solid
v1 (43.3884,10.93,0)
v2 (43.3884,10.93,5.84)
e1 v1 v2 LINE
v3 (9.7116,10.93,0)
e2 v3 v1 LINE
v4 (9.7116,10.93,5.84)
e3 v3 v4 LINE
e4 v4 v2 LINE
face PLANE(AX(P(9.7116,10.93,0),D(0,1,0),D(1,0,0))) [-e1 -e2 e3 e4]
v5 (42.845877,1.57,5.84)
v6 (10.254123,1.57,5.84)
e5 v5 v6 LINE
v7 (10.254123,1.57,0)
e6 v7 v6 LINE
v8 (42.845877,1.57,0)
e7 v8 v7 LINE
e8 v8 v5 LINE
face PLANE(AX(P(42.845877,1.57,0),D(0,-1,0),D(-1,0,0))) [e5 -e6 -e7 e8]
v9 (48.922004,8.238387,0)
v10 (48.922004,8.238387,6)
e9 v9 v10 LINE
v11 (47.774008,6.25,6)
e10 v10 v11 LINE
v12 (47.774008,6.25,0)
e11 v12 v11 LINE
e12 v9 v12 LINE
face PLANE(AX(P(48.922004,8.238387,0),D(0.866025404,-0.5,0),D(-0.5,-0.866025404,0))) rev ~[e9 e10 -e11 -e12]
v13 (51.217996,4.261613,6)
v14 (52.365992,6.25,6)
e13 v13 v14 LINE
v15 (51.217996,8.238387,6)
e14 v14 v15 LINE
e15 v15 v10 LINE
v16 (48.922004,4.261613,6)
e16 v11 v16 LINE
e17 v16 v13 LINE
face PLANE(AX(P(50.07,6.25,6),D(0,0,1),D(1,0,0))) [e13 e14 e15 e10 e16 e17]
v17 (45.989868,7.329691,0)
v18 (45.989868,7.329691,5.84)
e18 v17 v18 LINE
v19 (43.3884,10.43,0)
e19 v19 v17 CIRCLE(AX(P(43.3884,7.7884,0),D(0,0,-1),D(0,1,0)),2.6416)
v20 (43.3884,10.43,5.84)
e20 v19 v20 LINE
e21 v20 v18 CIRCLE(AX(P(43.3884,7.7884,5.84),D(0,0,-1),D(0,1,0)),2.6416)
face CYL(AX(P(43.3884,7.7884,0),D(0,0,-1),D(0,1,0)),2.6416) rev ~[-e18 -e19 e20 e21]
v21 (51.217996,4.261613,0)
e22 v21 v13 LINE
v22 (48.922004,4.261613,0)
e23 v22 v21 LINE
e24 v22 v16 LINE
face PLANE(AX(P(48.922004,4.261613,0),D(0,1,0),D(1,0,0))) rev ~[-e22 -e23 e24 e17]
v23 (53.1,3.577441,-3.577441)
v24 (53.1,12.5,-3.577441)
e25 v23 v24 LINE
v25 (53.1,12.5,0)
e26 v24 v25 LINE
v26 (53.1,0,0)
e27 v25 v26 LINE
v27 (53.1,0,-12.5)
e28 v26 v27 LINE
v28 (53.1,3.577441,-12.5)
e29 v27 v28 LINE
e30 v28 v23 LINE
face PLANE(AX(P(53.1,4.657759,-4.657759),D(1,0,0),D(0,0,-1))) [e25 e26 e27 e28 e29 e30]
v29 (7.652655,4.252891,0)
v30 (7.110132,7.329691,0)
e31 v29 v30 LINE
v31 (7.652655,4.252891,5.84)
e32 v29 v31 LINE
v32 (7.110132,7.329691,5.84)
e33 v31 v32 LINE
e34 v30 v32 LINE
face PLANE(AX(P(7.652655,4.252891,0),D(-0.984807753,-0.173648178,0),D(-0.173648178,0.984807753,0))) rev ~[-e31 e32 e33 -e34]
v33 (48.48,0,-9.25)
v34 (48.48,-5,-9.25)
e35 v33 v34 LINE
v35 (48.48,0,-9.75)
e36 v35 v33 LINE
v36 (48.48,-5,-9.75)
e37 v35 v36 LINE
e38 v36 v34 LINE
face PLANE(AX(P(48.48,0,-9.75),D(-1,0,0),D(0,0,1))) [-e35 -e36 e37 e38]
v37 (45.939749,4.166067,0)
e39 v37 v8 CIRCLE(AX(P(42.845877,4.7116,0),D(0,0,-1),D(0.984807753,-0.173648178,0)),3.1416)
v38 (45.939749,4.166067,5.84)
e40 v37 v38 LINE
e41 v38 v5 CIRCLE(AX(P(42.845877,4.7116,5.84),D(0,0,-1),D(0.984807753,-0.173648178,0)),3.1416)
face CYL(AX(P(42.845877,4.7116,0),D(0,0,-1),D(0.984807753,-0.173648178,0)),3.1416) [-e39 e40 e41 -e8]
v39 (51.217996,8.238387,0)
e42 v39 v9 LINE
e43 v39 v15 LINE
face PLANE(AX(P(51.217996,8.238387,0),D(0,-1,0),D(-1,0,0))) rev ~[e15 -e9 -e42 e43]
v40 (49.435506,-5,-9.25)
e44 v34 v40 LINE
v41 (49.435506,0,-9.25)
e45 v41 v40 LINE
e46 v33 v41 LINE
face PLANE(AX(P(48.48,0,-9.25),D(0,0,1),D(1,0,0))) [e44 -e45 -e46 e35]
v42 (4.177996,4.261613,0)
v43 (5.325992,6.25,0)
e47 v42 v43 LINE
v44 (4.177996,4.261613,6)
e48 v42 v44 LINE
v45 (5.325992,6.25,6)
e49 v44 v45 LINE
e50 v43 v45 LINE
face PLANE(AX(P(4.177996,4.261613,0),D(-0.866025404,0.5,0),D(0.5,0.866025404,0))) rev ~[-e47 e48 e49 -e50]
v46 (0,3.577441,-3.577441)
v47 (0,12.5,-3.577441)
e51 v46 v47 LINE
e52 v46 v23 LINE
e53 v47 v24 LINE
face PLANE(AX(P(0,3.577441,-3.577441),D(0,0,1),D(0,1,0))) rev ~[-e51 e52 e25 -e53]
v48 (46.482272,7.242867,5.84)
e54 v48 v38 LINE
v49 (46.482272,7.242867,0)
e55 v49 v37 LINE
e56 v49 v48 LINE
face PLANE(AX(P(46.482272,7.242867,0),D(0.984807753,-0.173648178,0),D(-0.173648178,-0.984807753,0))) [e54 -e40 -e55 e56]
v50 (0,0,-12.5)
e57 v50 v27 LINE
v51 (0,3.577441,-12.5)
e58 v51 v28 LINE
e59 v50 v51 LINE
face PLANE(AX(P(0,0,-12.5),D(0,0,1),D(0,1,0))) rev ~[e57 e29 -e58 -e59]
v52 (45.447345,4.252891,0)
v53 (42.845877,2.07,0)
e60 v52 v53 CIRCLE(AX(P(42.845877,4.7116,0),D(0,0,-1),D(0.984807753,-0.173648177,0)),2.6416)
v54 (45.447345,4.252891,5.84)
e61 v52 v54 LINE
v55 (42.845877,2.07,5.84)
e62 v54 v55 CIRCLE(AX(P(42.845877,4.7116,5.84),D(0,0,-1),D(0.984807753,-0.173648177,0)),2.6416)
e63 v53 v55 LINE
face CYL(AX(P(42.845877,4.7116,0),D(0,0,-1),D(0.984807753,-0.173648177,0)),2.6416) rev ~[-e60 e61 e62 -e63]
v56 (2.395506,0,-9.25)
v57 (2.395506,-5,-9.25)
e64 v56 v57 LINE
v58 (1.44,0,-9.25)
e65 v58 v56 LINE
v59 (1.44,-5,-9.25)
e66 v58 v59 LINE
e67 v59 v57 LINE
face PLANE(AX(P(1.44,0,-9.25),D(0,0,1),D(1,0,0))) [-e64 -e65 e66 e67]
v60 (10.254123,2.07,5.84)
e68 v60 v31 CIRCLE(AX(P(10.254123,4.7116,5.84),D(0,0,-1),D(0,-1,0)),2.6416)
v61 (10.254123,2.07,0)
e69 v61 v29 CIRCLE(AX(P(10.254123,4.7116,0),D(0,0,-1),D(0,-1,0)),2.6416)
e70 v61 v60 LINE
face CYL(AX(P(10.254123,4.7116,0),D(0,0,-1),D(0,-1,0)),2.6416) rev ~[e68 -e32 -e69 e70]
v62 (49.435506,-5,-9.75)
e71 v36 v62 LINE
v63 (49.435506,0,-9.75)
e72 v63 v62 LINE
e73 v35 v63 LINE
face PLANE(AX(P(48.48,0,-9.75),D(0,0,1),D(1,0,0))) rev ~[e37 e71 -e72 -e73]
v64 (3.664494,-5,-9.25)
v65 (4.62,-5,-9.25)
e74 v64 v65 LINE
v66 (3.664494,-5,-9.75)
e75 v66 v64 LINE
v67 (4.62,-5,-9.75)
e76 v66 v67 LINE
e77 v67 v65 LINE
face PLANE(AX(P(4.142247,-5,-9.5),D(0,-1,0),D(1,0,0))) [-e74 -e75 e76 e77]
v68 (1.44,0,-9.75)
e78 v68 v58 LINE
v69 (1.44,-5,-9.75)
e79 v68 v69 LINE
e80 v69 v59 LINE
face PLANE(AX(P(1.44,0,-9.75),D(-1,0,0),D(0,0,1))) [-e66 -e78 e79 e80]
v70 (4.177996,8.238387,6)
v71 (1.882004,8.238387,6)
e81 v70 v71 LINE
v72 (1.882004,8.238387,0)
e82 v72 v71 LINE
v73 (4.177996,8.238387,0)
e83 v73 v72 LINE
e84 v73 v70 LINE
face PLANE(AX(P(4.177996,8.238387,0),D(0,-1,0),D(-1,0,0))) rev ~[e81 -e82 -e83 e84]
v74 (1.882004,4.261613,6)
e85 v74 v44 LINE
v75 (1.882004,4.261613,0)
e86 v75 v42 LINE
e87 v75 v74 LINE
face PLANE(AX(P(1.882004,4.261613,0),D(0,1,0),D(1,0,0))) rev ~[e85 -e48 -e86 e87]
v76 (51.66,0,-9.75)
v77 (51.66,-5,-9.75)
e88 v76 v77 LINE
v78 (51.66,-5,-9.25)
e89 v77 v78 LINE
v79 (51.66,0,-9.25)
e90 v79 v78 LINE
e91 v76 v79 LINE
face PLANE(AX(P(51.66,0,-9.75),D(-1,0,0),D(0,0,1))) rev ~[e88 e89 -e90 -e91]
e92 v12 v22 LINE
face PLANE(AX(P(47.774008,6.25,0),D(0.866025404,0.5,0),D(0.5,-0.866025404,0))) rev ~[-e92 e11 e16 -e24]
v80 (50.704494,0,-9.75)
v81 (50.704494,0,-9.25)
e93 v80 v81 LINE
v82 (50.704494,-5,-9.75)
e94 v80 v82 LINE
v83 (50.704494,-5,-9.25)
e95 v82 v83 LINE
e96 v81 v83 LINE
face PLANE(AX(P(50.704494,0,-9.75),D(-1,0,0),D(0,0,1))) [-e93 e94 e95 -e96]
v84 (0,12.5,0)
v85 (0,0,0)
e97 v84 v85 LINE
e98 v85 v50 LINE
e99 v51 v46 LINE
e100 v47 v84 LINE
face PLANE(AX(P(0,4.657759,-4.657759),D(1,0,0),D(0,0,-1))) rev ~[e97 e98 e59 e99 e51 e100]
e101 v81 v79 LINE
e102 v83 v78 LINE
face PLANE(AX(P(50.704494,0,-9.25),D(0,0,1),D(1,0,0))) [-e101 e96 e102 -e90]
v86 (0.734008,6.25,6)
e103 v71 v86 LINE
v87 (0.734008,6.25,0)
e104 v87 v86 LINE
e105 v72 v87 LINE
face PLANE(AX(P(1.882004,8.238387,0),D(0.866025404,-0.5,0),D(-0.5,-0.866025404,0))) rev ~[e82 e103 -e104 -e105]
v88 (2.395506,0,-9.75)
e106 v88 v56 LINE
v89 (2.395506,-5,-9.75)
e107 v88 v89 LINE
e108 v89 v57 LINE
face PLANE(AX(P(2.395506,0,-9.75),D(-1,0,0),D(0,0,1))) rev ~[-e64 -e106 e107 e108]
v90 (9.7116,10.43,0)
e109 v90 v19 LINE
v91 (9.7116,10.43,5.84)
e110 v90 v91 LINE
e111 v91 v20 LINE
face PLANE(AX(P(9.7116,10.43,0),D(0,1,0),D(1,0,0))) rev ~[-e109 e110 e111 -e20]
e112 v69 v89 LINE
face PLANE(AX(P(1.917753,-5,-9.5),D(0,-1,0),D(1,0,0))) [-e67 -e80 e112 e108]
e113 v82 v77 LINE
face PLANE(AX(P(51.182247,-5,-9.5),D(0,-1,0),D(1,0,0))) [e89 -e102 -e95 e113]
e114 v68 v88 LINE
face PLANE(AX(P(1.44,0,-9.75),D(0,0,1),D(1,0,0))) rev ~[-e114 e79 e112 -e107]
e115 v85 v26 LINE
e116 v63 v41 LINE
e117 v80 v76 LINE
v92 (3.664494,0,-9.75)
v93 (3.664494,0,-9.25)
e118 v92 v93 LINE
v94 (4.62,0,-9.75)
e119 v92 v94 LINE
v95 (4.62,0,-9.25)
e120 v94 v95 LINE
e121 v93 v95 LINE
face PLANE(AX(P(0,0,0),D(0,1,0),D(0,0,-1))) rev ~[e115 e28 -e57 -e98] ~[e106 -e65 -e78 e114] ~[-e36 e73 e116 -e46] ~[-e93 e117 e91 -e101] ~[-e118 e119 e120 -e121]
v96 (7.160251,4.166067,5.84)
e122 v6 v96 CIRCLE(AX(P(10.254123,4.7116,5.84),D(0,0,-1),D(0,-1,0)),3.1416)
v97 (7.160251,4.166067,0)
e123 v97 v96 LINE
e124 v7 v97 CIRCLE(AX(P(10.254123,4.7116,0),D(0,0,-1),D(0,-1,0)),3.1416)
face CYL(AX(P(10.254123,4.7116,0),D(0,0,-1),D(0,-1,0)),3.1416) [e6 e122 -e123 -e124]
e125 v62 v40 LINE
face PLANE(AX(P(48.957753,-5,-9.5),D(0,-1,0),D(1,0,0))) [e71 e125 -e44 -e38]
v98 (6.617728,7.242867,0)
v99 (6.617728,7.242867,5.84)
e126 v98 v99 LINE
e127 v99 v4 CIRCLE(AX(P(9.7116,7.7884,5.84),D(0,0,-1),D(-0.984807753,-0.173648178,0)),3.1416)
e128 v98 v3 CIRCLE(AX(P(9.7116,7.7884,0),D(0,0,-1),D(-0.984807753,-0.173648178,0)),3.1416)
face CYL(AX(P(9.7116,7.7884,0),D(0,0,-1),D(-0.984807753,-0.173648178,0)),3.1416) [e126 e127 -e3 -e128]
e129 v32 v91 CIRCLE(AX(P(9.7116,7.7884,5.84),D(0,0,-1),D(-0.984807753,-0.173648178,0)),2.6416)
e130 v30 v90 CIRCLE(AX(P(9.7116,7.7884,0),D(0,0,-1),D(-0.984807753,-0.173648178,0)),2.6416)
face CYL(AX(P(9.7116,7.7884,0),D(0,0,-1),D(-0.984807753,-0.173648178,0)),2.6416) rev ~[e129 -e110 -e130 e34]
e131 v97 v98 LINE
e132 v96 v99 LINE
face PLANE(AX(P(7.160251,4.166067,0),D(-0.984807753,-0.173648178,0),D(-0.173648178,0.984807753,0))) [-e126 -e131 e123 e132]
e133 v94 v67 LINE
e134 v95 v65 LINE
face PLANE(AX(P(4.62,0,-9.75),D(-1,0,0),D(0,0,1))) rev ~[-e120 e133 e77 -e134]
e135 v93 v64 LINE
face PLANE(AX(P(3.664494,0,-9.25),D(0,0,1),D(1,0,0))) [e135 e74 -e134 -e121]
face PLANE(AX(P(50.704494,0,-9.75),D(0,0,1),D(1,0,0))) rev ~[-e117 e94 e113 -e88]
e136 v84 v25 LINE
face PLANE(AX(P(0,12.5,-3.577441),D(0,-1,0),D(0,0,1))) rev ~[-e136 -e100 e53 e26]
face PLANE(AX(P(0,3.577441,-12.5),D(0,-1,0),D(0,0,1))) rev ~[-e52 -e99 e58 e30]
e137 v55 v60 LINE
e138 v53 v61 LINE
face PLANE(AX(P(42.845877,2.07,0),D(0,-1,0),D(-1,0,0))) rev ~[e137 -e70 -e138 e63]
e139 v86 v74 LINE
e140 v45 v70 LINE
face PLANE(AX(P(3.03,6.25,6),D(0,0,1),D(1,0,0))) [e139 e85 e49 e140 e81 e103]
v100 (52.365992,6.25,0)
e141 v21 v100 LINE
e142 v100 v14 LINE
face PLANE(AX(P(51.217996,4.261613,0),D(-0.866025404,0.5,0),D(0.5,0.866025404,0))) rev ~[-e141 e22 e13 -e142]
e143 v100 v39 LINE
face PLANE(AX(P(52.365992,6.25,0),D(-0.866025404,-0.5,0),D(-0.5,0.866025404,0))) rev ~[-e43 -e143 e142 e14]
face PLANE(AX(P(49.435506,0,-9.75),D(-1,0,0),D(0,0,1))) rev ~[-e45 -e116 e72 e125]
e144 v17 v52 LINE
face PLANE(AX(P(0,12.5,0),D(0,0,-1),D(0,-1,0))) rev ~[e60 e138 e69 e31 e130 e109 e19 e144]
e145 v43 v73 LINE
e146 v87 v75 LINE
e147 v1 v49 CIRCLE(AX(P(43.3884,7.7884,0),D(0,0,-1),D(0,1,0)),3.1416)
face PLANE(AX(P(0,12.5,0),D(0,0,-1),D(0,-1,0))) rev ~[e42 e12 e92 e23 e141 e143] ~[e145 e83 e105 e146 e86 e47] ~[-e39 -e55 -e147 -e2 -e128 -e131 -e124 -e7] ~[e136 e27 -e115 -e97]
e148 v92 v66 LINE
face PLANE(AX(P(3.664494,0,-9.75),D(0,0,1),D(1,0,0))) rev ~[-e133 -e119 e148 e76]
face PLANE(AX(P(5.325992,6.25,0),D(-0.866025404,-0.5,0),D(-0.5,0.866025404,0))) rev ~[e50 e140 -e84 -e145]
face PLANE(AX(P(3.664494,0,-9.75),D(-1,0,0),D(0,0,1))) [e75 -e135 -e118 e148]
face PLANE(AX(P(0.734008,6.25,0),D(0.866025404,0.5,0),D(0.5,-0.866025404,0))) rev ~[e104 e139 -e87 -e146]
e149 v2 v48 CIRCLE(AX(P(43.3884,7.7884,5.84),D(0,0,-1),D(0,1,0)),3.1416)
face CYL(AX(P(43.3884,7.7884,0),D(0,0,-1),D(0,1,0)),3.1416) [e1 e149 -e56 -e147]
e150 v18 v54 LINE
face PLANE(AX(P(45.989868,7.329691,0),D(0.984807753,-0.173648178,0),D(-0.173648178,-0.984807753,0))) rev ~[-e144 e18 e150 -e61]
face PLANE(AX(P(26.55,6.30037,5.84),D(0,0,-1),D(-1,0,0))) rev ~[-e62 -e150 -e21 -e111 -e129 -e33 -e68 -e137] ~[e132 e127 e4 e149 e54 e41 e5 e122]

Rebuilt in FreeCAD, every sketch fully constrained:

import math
import FreeCAD as App
import Part
import Sketcher

V = App.Vector
Q = App.Units.Quantity


def add_polygon(sketch, points):
    """Adds a closed chain of lines whose ends are joined by coincident constraints."""
    first, n = sketch.GeometryCount, len(points)
    for a, b in zip(points, points[1:] + points[:1]):
        sketch.addGeometry(Part.LineSegment(App.Vector(*a, 0), App.Vector(*b, 0)), False)
    for i in range(n):
        sketch.addConstraint(Sketcher.Constraint("Coincident", first + i, 2, first + (i + 1) % n, 1))

doc = App.newDocument("Part")
body = doc.addObject("PartDesign::Body", "Body")

# Sketch on YZ plane
sketch1 = body.newObject("Sketcher::SketchObject", "Sketch")
sketch1.AttachmentSupport = (doc.getObject("YZ_Plane"), [""])
sketch1.MapMode = "FlatFace"
add_polygon(sketch1, [(0, 0), (0, -12.5), (3.577441, -12.5), (3.577441, -3.577441), (12.5, -3.577441), (12.5, 0)])  # lines 0-5
sketch1.addConstraint(Sketcher.Constraint("Vertical", 0))
sketch1.addConstraint(Sketcher.Constraint("Horizontal", 1))
sketch1.addConstraint(Sketcher.Constraint("Vertical", 2))
sketch1.addConstraint(Sketcher.Constraint("Horizontal", 3))
sketch1.addConstraint(Sketcher.Constraint("Vertical", 4))
sketch1.addConstraint(Sketcher.Constraint("Horizontal", 5))
sketch1.addConstraint(Sketcher.Constraint("Coincident", 5, 2, -1, 1))
sketch1.addConstraint(Sketcher.Constraint("Equal", 5, 0))
sketch1.addConstraint(Sketcher.Constraint("Equal", 3, 2))
sketch1.addConstraint(Sketcher.Constraint("DistanceX", 5, 2, 5, 1, Q("12.5 mm")))
sketch1.addConstraint(Sketcher.Constraint("DistanceX", 1, 1, 1, 2, Q("3.577441 mm")))
pad1 = body.newObject("PartDesign::Pad", "Pad")
pad1.Profile = sketch1
pad1.Length = 53.1

# Sketch on XZ plane
sketch2 = body.newObject("Sketcher::SketchObject", "Sketch001")
sketch2.AttachmentSupport = (doc.getObject("XZ_Plane"), [""])
sketch2.MapMode = "FlatFace"
add_polygon(sketch2, [(1.44, -9.25), (1.44, -9.75), (2.395506, -9.75), (2.395506, -9.25)])  # lines 0-3
add_polygon(sketch2, [(3.664494, -9.25), (3.664494, -9.75), (4.62, -9.75), (4.62, -9.25)])  # lines 4-7
add_polygon(sketch2, [(48.48, -9.25), (48.48, -9.75), (49.435506, -9.75), (49.435506, -9.25)])  # lines 8-11
add_polygon(sketch2, [(50.704494, -9.25), (50.704494, -9.75), (51.66, -9.75), (51.66, -9.25)])  # lines 12-15
sketch2.addConstraint(Sketcher.Constraint("Vertical", 0))
sketch2.addConstraint(Sketcher.Constraint("Horizontal", 1))
sketch2.addConstraint(Sketcher.Constraint("Vertical", 2))
sketch2.addConstraint(Sketcher.Constraint("Horizontal", 3))
sketch2.addConstraint(Sketcher.Constraint("Vertical", 4))
sketch2.addConstraint(Sketcher.Constraint("Horizontal", 5))
sketch2.addConstraint(Sketcher.Constraint("Vertical", 6))
sketch2.addConstraint(Sketcher.Constraint("Horizontal", 7))
sketch2.addConstraint(Sketcher.Constraint("Vertical", 8))
sketch2.addConstraint(Sketcher.Constraint("Horizontal", 9))
sketch2.addConstraint(Sketcher.Constraint("Vertical", 10))
sketch2.addConstraint(Sketcher.Constraint("Horizontal", 11))
sketch2.addConstraint(Sketcher.Constraint("Vertical", 12))
sketch2.addConstraint(Sketcher.Constraint("Horizontal", 13))
sketch2.addConstraint(Sketcher.Constraint("Vertical", 14))
sketch2.addConstraint(Sketcher.Constraint("Horizontal", 15))
sketch2.addConstraint(Sketcher.Constraint("Horizontal", 1, 2, 4, 2))
sketch2.addConstraint(Sketcher.Constraint("Horizontal", 3, 2, 6, 2))
sketch2.addConstraint(Sketcher.Constraint("Horizontal", 5, 2, 8, 2))
sketch2.addConstraint(Sketcher.Constraint("Horizontal", 7, 2, 10, 2))
sketch2.addConstraint(Sketcher.Constraint("Horizontal", 9, 2, 12, 2))
sketch2.addConstraint(Sketcher.Constraint("Horizontal", 11, 2, 14, 2))
sketch2.addConstraint(Sketcher.Constraint("Equal", 3, 5))
sketch2.addConstraint(Sketcher.Constraint("Equal", 7, 9))
sketch2.addConstraint(Sketcher.Constraint("Equal", 11, 13))
sketch2.addConstraint(Sketcher.Constraint("DistanceY", 0, 2, 0, 1, Q("0.5 mm")))
sketch2.addConstraint(Sketcher.Constraint("DistanceX", -1, 1, 0, 2, Q("1.44 mm")))
sketch2.addConstraint(Sketcher.Constraint("DistanceY", 0, 2, -1, 1, Q("9.75 mm")))
sketch2.addConstraint(Sketcher.Constraint("DistanceX", -1, 1, 5, 2, Q("4.62 mm")))
sketch2.addConstraint(Sketcher.Constraint("DistanceX", -1, 1, 8, 2, Q("48.48 mm")))
sketch2.addConstraint(Sketcher.Constraint("DistanceX", -1, 1, 13, 2, Q("51.66 mm")))
sketch2.addConstraint(Sketcher.Constraint("DistanceX", 1, 1, 1, 2, Q("0.955506 mm")))
pad2 = body.newObject("PartDesign::Pad", "Pad001")
pad2.Profile = sketch2
pad2.Length = 5

# Sketch on XY plane
sketch3 = body.newObject("Sketcher::SketchObject", "Sketch002")
sketch3.AttachmentSupport = (doc.getObject("XY_Plane"), [""])
sketch3.MapMode = "FlatFace"
add_polygon(sketch3, [(4.177996, 4.261613), (5.325992, 6.25), (4.177996, 8.238387), (1.882004, 8.238387), (0.734008, 6.25), (1.882004, 4.261613)])  # lines 0-5
add_polygon(sketch3, [(51.217996, 4.261613), (52.365992, 6.25), (51.217996, 8.238387), (48.922004, 8.238387), (47.774008, 6.25), (48.922004, 4.261613)])  # lines 6-11
sketch3.addConstraint(Sketcher.Constraint("Horizontal", 2))
sketch3.addConstraint(Sketcher.Constraint("Horizontal", 5))
sketch3.addConstraint(Sketcher.Constraint("Horizontal", 8))
sketch3.addConstraint(Sketcher.Constraint("Horizontal", 11))
sketch3.addConstraint(Sketcher.Constraint("Parallel", 0, 3))
sketch3.addConstraint(Sketcher.Constraint("Parallel", 1, 4))
sketch3.addConstraint(Sketcher.Constraint("Parallel", 3, 6))
sketch3.addConstraint(Sketcher.Constraint("Parallel", 4, 7))
sketch3.addConstraint(Sketcher.Constraint("Parallel", 6, 9))
sketch3.addConstraint(Sketcher.Constraint("Parallel", 7, 10))
sketch3.addConstraint(Sketcher.Constraint("Horizontal", 0, 2, 3, 2))
sketch3.addConstraint(Sketcher.Constraint("Horizontal", 3, 2, 6, 2))
sketch3.addConstraint(Sketcher.Constraint("Horizontal", 2, 2, 7, 2))
sketch3.addConstraint(Sketcher.Constraint("Horizontal", 6, 2, 9, 2))
sketch3.addConstraint(Sketcher.Constraint("Horizontal", 5, 2, 10, 2))
sketch3.addConstraint(Sketcher.Constraint("Vertical", 2, 2, 4, 2))
sketch3.addConstraint(Sketcher.Constraint("Vertical", 1, 2, 5, 2))
sketch3.addConstraint(Sketcher.Constraint("Equal", 5, 8))
sketch3.addConstraint(Sketcher.Constraint("Angle", 0, Q("60 deg")))
sketch3.addConstraint(Sketcher.Constraint("DistanceY", -1, 1, 0, 2, Q("6.25 mm")))
sketch3.addConstraint(Sketcher.Constraint("DistanceX", 0, 2, 6, 2, Q("47.04 mm")))
sketch3.addConstraint(Sketcher.Constraint("DistanceX", 2, 2, 2, 1, Q("2.295992 mm")))
sketch3.addConstraint(Sketcher.Constraint("Distance", 0, Q("2.295992 mm")))
sketch3.addConstraint(Sketcher.Constraint("DistanceX", -1, 1, 0, 2, Q("5.325992 mm")))
pad3 = body.newObject("PartDesign::Pad", "Pad002")
pad3.Profile = sketch3
pad3.Length = 6

# Sketch on XY plane
sketch4 = body.newObject("Sketcher::SketchObject", "Sketch003")
sketch4.AttachmentSupport = (doc.getObject("XY_Plane"), [""])
sketch4.MapMode = "FlatFace"
sketch4.addGeometry(Part.LineSegment(V(43.3884, 10.93, 0), V(9.7116, 10.93, 0)), False)
sketch4.addGeometry(Part.ArcOfCircle(Part.Circle(V(9.7116, 7.7884, 0), V(0, 0, 1), 3.1416), math.radians(90), math.radians(190)), False)
sketch4.addGeometry(Part.LineSegment(V(6.617728, 7.242867, 0), V(7.160251, 4.166067, 0)), False)
sketch4.addGeometry(Part.ArcOfCircle(Part.Circle(V(10.254123, 4.7116, 0), V(0, 0, 1), 3.1416), math.radians(-170), math.radians(-90)), False)
sketch4.addGeometry(Part.LineSegment(V(10.254123, 1.57, 0), V(42.845877, 1.57, 0)), False)
sketch4.addGeometry(Part.ArcOfCircle(Part.Circle(V(42.845877, 4.7116, 0), V(0, 0, 1), 3.1416), math.radians(-90), math.radians(-10)), False)
sketch4.addGeometry(Part.LineSegment(V(45.939749, 4.166067, 0), V(46.482272, 7.242867, 0)), False)
sketch4.addGeometry(Part.ArcOfCircle(Part.Circle(V(43.3884, 7.7884, 0), V(0, 0, 1), 3.1416), math.radians(-10), math.radians(90)), False)
sketch4.addGeometry(Part.LineSegment(V(9.7116, 10.43, 0), V(43.3884, 10.43, 0)), False)
sketch4.addGeometry(Part.ArcOfCircle(Part.Circle(V(43.3884, 7.7884, 0), V(0, 0, 1), 2.6416), math.radians(-10), math.radians(90)), False)
sketch4.addGeometry(Part.LineSegment(V(45.989868, 7.329691, 0), V(45.447345, 4.252891, 0)), False)
sketch4.addGeometry(Part.ArcOfCircle(Part.Circle(V(42.845877, 4.7116, 0), V(0, 0, 1), 2.6416), math.radians(-90), math.radians(-10)), False)
sketch4.addGeometry(Part.LineSegment(V(42.845877, 2.07, 0), V(10.254123, 2.07, 0)), False)
sketch4.addGeometry(Part.ArcOfCircle(Part.Circle(V(10.254123, 4.7116, 0), V(0, 0, 1), 2.6416), math.radians(-170), math.radians(-90)), False)
sketch4.addGeometry(Part.LineSegment(V(7.652655, 4.252891, 0), V(7.110132, 7.329691, 0)), False)
sketch4.addGeometry(Part.ArcOfCircle(Part.Circle(V(9.7116, 7.7884, 0), V(0, 0, 1), 2.6416), math.radians(90), math.radians(190)), False)
sketch4.addConstraint(Sketcher.Constraint("Tangent", 0, 2, 1, 1))
sketch4.addConstraint(Sketcher.Constraint("Tangent", 1, 2, 2, 1))
sketch4.addConstraint(Sketcher.Constraint("Tangent", 2, 2, 3, 1))
sketch4.addConstraint(Sketcher.Constraint("Tangent", 3, 2, 4, 1))
sketch4.addConstraint(Sketcher.Constraint("Tangent", 4, 2, 5, 1))
sketch4.addConstraint(Sketcher.Constraint("Tangent", 5, 2, 6, 1))
sketch4.addConstraint(Sketcher.Constraint("Tangent", 6, 2, 7, 1))
sketch4.addConstraint(Sketcher.Constraint("Tangent", 7, 2, 0, 1))
sketch4.addConstraint(Sketcher.Constraint("Tangent", 8, 2, 9, 2))
sketch4.addConstraint(Sketcher.Constraint("Tangent", 9, 1, 10, 1))
sketch4.addConstraint(Sketcher.Constraint("Tangent", 10, 2, 11, 2))
sketch4.addConstraint(Sketcher.Constraint("Tangent", 11, 1, 12, 1))
sketch4.addConstraint(Sketcher.Constraint("Tangent", 12, 2, 13, 2))
sketch4.addConstraint(Sketcher.Constraint("Tangent", 13, 1, 14, 1))
sketch4.addConstraint(Sketcher.Constraint("Tangent", 14, 2, 15, 2))
sketch4.addConstraint(Sketcher.Constraint("Tangent", 15, 1, 8, 1))
sketch4.addConstraint(Sketcher.Constraint("Horizontal", 0))
sketch4.addConstraint(Sketcher.Constraint("Horizontal", 4))
sketch4.addConstraint(Sketcher.Constraint("Horizontal", 8))
sketch4.addConstraint(Sketcher.Constraint("Horizontal", 12))
sketch4.addConstraint(Sketcher.Constraint("Coincident", 9, 3, 7, 3))
sketch4.addConstraint(Sketcher.Constraint("Coincident", 11, 3, 5, 3))
sketch4.addConstraint(Sketcher.Constraint("Coincident", 13, 3, 3, 3))
sketch4.addConstraint(Sketcher.Constraint("Coincident", 15, 3, 1, 3))
sketch4.addConstraint(Sketcher.Constraint("Equal", 1, 3))
sketch4.addConstraint(Sketcher.Constraint("Equal", 3, 5))
sketch4.addConstraint(Sketcher.Constraint("Equal", 5, 7))
sketch4.addConstraint(Sketcher.Constraint("Equal", 9, 11))
sketch4.addConstraint(Sketcher.Constraint("Horizontal", 2, 2, 5, 2))
sketch4.addConstraint(Sketcher.Constraint("Angle", 2, Q("-80 deg")))
sketch4.addConstraint(Sketcher.Constraint("Radius", 1, Q("3.1416 mm")))
sketch4.addConstraint(Sketcher.Constraint("Radius", 9, Q("2.6416 mm")))
sketch4.addConstraint(Sketcher.Constraint("DistanceY", -1, 1, 0, 2, Q("10.93 mm")))
sketch4.addConstraint(Sketcher.Constraint("DistanceY", -1, 1, 3, 2, Q("1.57 mm")))
sketch4.addConstraint(Sketcher.Constraint("DistanceX", 0, 2, 0, 1, Q("33.6768 mm")))
sketch4.addConstraint(Sketcher.Constraint("DistanceX", -1, 1, 1, 3, Q("9.7116 mm")))
pad4 = body.newObject("PartDesign::Pad", "Pad003")
pad4.Profile = sketch4
pad4.Length = 5.84

doc.recompute()
